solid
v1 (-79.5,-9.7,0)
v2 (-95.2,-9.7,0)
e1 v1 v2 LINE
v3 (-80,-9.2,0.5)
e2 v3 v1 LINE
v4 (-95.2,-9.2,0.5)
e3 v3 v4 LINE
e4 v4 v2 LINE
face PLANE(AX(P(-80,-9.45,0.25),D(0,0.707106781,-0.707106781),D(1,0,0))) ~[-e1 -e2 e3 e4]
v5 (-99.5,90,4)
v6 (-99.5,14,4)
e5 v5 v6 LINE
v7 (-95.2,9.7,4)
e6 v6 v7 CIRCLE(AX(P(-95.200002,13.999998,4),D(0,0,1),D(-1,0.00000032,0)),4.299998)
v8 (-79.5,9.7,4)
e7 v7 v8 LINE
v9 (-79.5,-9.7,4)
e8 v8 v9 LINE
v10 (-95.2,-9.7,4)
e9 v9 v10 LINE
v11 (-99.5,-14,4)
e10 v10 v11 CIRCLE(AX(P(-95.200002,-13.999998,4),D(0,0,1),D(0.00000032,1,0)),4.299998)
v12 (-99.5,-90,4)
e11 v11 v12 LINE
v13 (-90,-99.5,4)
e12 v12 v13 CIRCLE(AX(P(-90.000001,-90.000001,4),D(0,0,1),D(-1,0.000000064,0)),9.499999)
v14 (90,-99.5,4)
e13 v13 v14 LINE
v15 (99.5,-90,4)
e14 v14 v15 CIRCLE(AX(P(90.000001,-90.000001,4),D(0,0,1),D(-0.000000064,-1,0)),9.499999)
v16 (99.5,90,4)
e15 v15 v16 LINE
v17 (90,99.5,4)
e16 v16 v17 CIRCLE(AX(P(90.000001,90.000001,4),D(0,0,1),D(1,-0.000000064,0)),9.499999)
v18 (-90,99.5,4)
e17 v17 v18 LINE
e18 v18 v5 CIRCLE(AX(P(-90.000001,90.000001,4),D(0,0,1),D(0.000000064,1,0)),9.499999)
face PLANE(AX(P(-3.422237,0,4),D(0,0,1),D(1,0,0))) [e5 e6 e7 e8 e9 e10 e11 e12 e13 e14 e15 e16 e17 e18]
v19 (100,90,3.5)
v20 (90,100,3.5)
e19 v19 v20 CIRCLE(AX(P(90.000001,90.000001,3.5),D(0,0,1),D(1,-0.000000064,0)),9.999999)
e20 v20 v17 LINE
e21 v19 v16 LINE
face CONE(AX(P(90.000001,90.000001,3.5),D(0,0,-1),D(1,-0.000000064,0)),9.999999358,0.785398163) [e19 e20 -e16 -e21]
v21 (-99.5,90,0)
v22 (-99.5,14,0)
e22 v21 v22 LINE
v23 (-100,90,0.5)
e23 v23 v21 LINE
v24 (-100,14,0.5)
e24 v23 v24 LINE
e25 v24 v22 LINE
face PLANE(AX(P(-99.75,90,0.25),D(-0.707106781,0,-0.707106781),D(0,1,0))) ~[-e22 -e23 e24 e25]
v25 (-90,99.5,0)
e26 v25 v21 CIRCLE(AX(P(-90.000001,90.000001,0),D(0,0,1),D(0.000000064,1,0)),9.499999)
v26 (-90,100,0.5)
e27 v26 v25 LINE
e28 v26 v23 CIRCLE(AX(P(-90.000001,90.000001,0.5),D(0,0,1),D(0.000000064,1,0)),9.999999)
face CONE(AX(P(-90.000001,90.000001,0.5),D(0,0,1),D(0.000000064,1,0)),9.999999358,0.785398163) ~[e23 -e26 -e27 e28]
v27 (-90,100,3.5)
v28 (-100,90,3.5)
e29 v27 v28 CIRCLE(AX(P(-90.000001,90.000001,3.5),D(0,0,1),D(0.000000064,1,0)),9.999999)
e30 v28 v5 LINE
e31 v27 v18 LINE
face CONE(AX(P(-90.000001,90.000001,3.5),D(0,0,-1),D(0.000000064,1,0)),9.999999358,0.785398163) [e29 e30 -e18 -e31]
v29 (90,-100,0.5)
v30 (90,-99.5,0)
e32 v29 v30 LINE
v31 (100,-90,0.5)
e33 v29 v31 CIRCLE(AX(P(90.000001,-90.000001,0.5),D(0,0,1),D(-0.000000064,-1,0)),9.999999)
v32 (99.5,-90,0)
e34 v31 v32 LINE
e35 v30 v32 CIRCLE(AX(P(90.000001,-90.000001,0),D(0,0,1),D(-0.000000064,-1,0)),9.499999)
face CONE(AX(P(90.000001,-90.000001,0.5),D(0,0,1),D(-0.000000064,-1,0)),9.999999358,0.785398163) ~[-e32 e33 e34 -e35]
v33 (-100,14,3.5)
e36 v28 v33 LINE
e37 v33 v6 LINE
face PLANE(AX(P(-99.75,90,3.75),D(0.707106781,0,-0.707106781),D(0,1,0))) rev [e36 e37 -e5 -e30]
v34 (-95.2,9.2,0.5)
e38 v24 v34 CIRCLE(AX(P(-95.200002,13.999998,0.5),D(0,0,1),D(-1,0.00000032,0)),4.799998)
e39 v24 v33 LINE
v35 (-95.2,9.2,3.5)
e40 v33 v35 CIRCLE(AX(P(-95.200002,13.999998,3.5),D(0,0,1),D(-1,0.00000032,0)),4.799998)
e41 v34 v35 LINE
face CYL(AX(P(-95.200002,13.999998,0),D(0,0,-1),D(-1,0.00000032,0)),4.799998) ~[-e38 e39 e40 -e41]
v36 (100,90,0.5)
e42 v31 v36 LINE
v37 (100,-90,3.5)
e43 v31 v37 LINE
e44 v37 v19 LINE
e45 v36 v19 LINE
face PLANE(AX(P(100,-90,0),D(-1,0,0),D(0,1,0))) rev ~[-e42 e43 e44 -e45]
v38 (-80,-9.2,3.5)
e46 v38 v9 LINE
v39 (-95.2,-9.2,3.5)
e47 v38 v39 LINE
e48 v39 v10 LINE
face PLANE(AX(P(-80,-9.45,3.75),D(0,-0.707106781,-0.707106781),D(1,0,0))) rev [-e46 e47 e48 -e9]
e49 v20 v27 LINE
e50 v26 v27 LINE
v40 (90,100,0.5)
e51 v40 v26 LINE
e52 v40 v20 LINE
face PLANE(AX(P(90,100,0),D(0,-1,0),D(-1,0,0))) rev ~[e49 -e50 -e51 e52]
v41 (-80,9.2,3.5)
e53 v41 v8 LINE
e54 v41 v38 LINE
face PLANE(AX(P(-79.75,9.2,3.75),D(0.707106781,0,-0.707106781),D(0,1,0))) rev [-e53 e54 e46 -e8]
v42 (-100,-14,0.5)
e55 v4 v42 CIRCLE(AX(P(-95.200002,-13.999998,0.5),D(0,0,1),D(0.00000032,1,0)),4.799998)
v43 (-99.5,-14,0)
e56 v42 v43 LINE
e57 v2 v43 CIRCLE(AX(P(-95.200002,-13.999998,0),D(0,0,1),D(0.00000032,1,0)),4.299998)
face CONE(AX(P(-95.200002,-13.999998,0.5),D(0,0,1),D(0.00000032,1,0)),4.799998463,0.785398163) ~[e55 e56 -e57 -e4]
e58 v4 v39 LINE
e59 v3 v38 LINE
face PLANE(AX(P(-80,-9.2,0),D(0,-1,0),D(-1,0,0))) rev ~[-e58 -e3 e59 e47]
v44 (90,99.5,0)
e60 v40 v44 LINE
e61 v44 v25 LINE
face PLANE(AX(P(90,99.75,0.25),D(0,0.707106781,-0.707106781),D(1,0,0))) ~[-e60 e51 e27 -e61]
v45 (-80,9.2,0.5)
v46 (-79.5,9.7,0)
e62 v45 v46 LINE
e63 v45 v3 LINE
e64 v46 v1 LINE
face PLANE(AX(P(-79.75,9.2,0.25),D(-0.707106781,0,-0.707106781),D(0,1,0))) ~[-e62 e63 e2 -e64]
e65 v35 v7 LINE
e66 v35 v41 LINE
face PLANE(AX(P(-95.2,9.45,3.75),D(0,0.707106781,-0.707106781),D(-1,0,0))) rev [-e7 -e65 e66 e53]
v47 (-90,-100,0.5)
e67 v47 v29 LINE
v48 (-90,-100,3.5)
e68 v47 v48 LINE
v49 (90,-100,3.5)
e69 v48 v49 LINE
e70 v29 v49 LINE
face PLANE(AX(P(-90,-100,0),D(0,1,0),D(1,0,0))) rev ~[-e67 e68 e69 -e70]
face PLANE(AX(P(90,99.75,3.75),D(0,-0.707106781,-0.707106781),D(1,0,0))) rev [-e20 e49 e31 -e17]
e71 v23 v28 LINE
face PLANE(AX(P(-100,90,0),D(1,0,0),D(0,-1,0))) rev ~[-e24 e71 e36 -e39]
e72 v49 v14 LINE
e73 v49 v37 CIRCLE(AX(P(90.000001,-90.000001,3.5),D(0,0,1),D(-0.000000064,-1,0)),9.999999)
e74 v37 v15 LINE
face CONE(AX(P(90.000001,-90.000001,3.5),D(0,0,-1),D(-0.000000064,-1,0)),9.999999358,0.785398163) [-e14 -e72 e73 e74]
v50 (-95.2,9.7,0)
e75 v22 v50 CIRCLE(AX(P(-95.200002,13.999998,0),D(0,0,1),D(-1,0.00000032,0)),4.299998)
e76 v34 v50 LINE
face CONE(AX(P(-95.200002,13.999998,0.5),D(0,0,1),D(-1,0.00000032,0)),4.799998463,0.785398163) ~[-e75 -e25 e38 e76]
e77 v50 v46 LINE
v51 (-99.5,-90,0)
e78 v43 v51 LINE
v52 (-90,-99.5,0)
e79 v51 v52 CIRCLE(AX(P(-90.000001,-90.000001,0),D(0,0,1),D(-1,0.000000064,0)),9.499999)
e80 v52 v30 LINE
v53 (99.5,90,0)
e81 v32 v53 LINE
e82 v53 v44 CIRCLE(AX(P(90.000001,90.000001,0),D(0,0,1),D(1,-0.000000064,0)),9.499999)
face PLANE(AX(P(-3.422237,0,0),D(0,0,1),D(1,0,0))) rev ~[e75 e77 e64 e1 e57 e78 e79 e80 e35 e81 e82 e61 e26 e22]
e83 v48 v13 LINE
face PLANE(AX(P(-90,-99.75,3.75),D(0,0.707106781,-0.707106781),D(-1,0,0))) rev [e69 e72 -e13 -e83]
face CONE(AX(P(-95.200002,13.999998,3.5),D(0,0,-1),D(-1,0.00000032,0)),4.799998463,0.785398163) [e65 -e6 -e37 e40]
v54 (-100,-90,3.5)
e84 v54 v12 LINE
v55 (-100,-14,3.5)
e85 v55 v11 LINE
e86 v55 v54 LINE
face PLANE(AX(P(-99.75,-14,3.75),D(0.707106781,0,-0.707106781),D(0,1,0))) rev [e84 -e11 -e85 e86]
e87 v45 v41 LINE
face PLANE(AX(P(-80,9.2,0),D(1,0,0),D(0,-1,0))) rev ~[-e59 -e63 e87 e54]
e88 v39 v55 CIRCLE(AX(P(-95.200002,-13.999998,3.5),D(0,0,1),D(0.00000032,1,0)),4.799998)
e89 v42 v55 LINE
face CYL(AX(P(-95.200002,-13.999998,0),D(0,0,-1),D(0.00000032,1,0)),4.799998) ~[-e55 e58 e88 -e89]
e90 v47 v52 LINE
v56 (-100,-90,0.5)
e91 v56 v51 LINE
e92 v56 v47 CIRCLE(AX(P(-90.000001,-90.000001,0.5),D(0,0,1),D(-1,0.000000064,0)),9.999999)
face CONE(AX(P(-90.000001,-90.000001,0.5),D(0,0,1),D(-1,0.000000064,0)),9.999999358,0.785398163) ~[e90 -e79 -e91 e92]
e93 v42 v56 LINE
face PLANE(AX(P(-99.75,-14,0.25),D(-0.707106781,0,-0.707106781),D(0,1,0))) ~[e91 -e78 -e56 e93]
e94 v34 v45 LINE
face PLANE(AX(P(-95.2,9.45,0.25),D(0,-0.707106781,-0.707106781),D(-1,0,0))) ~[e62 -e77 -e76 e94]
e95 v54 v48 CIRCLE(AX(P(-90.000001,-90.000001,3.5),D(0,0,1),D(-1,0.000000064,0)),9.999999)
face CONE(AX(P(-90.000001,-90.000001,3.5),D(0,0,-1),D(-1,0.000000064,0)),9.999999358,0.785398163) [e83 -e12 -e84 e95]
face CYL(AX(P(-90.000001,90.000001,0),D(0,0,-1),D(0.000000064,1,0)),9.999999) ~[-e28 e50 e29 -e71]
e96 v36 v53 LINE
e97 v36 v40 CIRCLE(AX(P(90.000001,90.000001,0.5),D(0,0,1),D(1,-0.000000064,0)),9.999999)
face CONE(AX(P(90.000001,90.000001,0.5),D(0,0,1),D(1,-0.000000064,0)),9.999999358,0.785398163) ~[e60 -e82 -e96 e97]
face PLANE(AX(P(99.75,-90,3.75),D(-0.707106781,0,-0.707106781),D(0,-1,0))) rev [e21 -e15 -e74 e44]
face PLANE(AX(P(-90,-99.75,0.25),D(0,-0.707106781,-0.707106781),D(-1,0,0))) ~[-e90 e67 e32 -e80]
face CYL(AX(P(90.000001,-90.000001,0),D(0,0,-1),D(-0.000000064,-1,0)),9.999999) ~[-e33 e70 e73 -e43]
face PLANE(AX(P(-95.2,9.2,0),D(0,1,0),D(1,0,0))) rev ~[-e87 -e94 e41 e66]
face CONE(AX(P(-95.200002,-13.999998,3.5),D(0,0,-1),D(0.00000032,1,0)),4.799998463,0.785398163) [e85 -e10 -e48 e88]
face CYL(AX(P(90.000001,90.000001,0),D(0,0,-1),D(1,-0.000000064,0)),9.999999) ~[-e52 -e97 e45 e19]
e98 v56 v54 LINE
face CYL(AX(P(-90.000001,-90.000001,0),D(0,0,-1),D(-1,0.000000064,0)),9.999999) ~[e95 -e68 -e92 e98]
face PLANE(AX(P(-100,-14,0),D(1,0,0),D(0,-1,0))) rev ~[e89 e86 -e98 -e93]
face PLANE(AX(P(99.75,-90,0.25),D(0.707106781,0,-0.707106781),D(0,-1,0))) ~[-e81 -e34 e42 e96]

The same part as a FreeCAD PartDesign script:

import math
import FreeCAD as App
import Part
import Sketcher


def edges_at(feature, points):
    """Names of the edges that pass closest to the given points."""
    edges = feature.Shape.Edges
    near = lambda p: min(range(len(edges)), key=lambda i: edges[i].distToShape(Part.Vertex(*p))[0])
    return sorted({f"Edge{near(p) + 1}" for p in points})

doc = App.newDocument("Part")
body = doc.addObject("PartDesign::Body", "Body")

# Sketch on XY plane
sketch1 = body.newObject("Sketcher::SketchObject", "Sketch")
sketch1.AttachmentSupport = (doc.getObject("XY_Plane"), [""])
sketch1.MapMode = "FlatFace"
sketch1.addGeometry([
    Part.LineSegment(App.Vector(-90, -100, 0), App.Vector(90, -100, 0)),  # 0
    Part.ArcOfCircle(Part.Circle(App.Vector(90, -90, 0), App.Vector(0, 0, 1), 10), math.radians(-90), math.radians(0)),  # 1
    Part.LineSegment(App.Vector(100, -90, 0), App.Vector(100, 90, 0)),  # 2
    Part.ArcOfCircle(Part.Circle(App.Vector(90, 90, 0), App.Vector(0, 0, 1), 10), math.radians(0), math.radians(90)),  # 3
    Part.LineSegment(App.Vector(90, 100, 0), App.Vector(-90, 100, 0)),  # 4
    Part.ArcOfCircle(Part.Circle(App.Vector(-90, 90, 0), App.Vector(0, 0, 1), 10), math.radians(90), math.radians(180)),  # 5
    Part.LineSegment(App.Vector(-100, 90, 0), App.Vector(-100, 14, 0)),  # 6
    Part.ArcOfCircle(Part.Circle(App.Vector(-95.2, 14, 0), App.Vector(0, 0, 1), 4.8), math.radians(180), math.radians(270)),  # 7
    Part.LineSegment(App.Vector(-95.2, 9.2, 0), App.Vector(-80, 9.2, 0)),  # 8
    Part.LineSegment(App.Vector(-80, 9.2, 0), App.Vector(-80, -9.2, 0)),  # 9
    Part.LineSegment(App.Vector(-80, -9.2, 0), App.Vector(-95.2, -9.2, 0)),  # 10
    Part.ArcOfCircle(Part.Circle(App.Vector(-95.2, -14, 0), App.Vector(0, 0, 1), 4.8), math.radians(90), math.radians(180)),  # 11
    Part.LineSegment(App.Vector(-100, -14, 0), App.Vector(-100, -90, 0)),  # 12
    Part.ArcOfCircle(Part.Circle(App.Vector(-90, -90, 0), App.Vector(0, 0, 1), 10), math.radians(180), math.radians(270)),  # 13
], False)
sketch1.addConstraint([
    Sketcher.Constraint("Tangent", 0, 2, 1, 1),
    Sketcher.Constraint("Tangent", 1, 2, 2, 1),
    Sketcher.Constraint("Tangent", 2, 2, 3, 1),
    Sketcher.Constraint("Tangent", 3, 2, 4, 1),
    Sketcher.Constraint("Tangent", 4, 2, 5, 1),
    Sketcher.Constraint("Tangent", 5, 2, 6, 1),
    Sketcher.Constraint("Tangent", 6, 2, 7, 1),
    Sketcher.Constraint("Tangent", 7, 2, 8, 1),
    Sketcher.Constraint("Coincident", 8, 2, 9, 1),
    Sketcher.Constraint("Coincident", 9, 2, 10, 1),
    Sketcher.Constraint("Tangent", 10, 2, 11, 1),
    Sketcher.Constraint("Tangent", 11, 2, 12, 1),
    Sketcher.Constraint("Tangent", 12, 2, 13, 1),
    Sketcher.Constraint("Tangent", 13, 2, 0, 1),
    Sketcher.Constraint("Horizontal", 0),
    Sketcher.Constraint("Vertical", 2),
    Sketcher.Constraint("Horizontal", 4),
    Sketcher.Constraint("Vertical", 6),
    Sketcher.Constraint("Horizontal", 8),
    Sketcher.Constraint("Vertical", 9),
    Sketcher.Constraint("Horizontal", 10),
    Sketcher.Constraint("Vertical", 12),
    Sketcher.Constraint("Equal", 1, 3),
    Sketcher.Constraint("Equal", 3, 5),
    Sketcher.Constraint("Equal", 7, 11),
    Sketcher.Constraint("Equal", 5, 13),
    Sketcher.Constraint("Symmetric", 1, 3, 5, 3, -1, 1),
    Sketcher.Constraint("Symmetric", 7, 3, 11, 3, -1),
    Sketcher.Constraint("Equal", 4, 2),
    Sketcher.Constraint("Radius", 1, 9.999999),
    Sketcher.Constraint("Radius", 7, 4.799998),
    Sketcher.Constraint("DistanceX", 0, 1, 0, 2, 180.0),
    Sketcher.Constraint("DistanceY", 6, 2, 6, 1, 76.0),
    Sketcher.Constraint("DistanceX", 8, 1, 8, 2, 15.2),
])
pad1 = body.newObject("PartDesign::Pad", "Pad")
pad1.Profile = sketch1
pad1.Length = 4
doc.recompute()

chamfer = body.newObject("PartDesign::Chamfer", "Chamfer")
chamfer.Base = (pad1, edges_at(pad1, [
    (0, -100, 4),
    (97.071, -97.071, 4),
    (100, 0, 4),
    (97.071, 97.071, 4),
    (0, 100, 4),
    (-97.071, 97.071, 4),
    (-100, 52, 4),
    (-98.594, 10.606, 4),
    (-87.6, 9.2, 4),
    (-80, 0, 4),
    (-87.6, -9.2, 4),
    (-98.594, -10.606, 4),
    (-100, -52, 4),
    (-97.071, -97.071, 4),
    (0, -100, 0),
    (97.071, -97.071, 0),
    (100, 0, 0),
    (97.071, 97.071, 0),
    (0, 100, 0),
    (-97.071, 97.071, 0),
    (-100, 52, 0),
    (-98.594, 10.606, 0),
    (-87.6, 9.2, 0),
    (-80, 0, 0),
    (-87.6, -9.2, 0),
    (-98.594, -10.606, 0),
    (-100, -52, 0),
    (-97.071, -97.071, 0),
]))
chamfer.Size = 0.5

doc.recompute()
